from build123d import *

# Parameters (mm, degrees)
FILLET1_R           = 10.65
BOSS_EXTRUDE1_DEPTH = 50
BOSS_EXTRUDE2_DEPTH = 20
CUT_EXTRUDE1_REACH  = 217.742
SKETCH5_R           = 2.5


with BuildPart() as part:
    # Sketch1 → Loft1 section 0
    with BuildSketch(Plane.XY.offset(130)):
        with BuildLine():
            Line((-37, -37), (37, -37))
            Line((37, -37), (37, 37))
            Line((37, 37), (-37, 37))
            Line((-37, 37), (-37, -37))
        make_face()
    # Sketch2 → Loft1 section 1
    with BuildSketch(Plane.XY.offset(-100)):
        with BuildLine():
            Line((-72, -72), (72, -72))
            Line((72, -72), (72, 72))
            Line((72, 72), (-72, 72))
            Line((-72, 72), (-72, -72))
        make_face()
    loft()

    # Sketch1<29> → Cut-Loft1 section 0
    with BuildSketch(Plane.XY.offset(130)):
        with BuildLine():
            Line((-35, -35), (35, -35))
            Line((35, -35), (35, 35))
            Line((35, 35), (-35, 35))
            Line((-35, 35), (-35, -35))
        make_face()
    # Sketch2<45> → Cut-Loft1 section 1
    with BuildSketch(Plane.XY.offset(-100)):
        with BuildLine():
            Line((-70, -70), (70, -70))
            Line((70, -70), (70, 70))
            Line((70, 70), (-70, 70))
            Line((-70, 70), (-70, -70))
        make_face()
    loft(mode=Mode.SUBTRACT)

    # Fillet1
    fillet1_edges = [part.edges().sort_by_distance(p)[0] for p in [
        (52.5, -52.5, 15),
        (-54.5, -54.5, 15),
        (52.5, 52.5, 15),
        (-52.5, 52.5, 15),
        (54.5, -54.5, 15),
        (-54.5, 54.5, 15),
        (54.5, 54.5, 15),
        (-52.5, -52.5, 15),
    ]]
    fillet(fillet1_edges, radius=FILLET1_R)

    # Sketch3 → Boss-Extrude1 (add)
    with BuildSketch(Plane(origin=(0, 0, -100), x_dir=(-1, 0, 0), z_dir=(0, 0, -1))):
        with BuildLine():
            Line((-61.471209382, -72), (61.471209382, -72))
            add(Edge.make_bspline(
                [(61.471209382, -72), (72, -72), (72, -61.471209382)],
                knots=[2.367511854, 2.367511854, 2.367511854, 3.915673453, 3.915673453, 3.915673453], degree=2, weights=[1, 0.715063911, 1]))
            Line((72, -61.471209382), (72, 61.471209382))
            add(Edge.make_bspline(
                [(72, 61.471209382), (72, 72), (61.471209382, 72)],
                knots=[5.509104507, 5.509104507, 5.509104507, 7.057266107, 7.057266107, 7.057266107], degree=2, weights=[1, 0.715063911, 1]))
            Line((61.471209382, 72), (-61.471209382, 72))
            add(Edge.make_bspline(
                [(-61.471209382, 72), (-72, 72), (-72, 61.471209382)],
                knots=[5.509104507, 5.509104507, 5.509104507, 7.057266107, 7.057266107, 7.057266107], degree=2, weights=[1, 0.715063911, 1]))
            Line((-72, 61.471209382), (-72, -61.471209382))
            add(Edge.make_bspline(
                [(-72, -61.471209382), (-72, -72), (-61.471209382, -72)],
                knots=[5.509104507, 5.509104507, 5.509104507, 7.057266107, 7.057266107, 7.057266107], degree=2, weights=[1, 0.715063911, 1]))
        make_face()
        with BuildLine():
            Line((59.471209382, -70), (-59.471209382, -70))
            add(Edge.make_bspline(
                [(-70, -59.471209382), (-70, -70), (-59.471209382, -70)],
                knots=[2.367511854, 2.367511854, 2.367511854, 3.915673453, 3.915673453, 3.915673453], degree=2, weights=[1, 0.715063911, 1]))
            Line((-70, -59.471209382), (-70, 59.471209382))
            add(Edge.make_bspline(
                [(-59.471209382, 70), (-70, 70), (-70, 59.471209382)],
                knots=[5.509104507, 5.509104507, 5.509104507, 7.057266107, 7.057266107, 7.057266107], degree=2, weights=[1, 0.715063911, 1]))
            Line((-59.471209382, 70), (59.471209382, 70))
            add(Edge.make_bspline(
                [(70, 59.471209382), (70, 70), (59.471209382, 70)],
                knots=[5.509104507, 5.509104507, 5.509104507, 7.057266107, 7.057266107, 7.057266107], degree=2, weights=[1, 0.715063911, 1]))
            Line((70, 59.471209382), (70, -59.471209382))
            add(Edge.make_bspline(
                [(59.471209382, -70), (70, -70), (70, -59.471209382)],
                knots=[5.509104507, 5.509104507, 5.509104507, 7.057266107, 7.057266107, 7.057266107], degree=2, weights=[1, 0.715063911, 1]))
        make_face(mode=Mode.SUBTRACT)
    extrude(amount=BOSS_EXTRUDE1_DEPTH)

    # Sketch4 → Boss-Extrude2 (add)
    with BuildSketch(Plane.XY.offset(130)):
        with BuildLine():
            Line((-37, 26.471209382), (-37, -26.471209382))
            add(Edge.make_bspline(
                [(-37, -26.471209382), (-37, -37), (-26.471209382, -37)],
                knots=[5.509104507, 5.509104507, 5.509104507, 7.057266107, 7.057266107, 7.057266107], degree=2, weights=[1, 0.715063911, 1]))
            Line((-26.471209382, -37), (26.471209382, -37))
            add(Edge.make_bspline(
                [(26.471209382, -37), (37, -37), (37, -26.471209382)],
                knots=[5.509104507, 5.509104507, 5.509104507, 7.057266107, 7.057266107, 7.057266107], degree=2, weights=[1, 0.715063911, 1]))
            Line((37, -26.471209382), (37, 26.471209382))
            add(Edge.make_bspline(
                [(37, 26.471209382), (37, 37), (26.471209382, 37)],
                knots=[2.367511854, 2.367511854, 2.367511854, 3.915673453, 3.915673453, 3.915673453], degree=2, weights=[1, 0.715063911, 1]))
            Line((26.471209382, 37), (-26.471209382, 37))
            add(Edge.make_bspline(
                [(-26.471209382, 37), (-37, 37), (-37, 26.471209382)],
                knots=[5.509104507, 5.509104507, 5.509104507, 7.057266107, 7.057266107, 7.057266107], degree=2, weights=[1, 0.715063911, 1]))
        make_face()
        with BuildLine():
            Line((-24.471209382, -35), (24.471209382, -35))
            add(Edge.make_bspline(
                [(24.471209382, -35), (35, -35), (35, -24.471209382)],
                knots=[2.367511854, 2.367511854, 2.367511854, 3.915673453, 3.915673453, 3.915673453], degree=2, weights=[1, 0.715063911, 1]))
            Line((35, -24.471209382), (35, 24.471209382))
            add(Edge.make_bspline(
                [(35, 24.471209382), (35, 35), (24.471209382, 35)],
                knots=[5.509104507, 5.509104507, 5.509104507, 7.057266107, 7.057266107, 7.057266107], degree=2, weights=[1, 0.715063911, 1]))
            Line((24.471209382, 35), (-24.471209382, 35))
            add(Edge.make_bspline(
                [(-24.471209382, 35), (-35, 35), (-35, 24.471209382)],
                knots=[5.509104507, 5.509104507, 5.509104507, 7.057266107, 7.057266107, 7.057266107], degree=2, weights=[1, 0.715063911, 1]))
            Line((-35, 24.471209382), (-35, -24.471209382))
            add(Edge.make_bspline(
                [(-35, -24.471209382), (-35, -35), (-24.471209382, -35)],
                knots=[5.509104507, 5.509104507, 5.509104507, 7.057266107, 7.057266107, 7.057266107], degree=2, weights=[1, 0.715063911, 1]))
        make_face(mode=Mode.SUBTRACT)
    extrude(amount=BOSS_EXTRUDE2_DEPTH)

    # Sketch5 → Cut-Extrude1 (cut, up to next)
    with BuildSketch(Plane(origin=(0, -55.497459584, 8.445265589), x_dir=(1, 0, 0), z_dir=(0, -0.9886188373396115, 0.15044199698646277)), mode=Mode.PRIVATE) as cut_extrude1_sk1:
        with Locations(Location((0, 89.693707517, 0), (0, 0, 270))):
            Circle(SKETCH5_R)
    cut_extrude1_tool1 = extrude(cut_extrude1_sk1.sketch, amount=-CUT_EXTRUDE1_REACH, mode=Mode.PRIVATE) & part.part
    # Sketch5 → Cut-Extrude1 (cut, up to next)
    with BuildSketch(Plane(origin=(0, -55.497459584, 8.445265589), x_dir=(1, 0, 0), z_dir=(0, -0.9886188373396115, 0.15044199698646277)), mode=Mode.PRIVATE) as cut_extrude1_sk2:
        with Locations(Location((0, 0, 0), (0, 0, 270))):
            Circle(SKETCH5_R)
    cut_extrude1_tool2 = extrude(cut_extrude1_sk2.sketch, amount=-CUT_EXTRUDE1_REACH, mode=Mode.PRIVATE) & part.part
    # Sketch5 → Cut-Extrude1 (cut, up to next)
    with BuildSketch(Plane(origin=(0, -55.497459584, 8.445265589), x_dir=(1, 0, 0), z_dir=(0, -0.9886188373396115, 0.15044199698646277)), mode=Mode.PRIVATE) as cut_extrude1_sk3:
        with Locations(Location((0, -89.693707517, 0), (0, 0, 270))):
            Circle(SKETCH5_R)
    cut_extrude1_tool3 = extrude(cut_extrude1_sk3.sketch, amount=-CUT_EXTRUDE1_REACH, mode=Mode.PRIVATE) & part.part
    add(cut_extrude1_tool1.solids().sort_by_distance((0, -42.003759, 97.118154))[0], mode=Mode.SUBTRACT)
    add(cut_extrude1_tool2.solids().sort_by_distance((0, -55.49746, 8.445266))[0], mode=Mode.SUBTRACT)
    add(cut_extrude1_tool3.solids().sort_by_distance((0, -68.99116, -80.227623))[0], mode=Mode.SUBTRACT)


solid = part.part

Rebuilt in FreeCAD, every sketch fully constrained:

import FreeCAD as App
import Part
import Sketcher
from FreeCAD import Vector
Q = App.Units.Quantity


def edges_at(feature, points):
    """Names of the edges that pass closest to the given points."""
    edges = feature.Shape.Edges
    near = lambda p: min(range(len(edges)), key=lambda i: edges[i].distToShape(Part.Vertex(*p))[0])
    return sorted({f"Edge{near(p) + 1}" for p in points})

doc = App.newDocument("Part")
params = doc.addObject("Spreadsheet::Sheet", "Params")
for row, (alias, value) in enumerate([
    ("sketch1_width", "74 mm"),
    ("sketch2_width", "144 mm"),
    ("sketch3_width", "70 mm"),
    ("sketch4_width", "140 mm"),
    ("fillet_radius", "10.65 mm"),
    ("pad1_length", "50 mm"),
    ("pad2_length", "20 mm"),
    ("sketch7_diameter", "5 mm"),
    ("sketch8_diameter", "5 mm"),
    ("sketch9_diameter", "5 mm"),
], start=1):
    params.set(f"A{row}", alias)
    params.set(f"B{row}", "=" + value)
    params.setAlias(f"B{row}", alias)

body = doc.addObject("PartDesign::Body", "Body")

sketch1 = body.newObject("Sketcher::SketchObject", "Sketch")
sketch1.AttachmentSupport = (doc.getObject("XY_Plane"), [""])
sketch1.MapMode = "FlatFace"
sketch1.AttachmentOffset = App.Placement(Vector(0, 0, 130), App.Rotation())
sketch1.addGeometry([
    Part.LineSegment(Vector(-37, -37, 0), Vector(37, -37, 0)),
    Part.LineSegment(Vector(37, -37, 0), Vector(37, 37, 0)),
    Part.LineSegment(Vector(37, 37, 0), Vector(-37, 37, 0)),
    Part.LineSegment(Vector(-37, 37, 0), Vector(-37, -37, 0)),
], False)
sketch1.addConstraint([
    Sketcher.Constraint("Coincident", 0, 2, 1, 1),
    Sketcher.Constraint("Coincident", 1, 2, 2, 1),
    Sketcher.Constraint("Coincident", 2, 2, 3, 1),
    Sketcher.Constraint("Coincident", 3, 2, 0, 1),
    Sketcher.Constraint("Horizontal", 0),
    Sketcher.Constraint("Vertical", 1),
    Sketcher.Constraint("Horizontal", 2),
    Sketcher.Constraint("Vertical", 3),
    Sketcher.Constraint("Symmetric", 0, 2, 2, 2, -1, 1),
    Sketcher.Constraint("Equal", 2, 1),
    Sketcher.Constraint("DistanceX", 0, 1, 0, 2, Q("74 mm")),
])
sketch1.setExpression("Constraints[10]", "Params.sketch1_width")

sketch2 = body.newObject("Sketcher::SketchObject", "Sketch001")
sketch2.AttachmentSupport = (doc.getObject("XY_Plane"), [""])
sketch2.MapMode = "FlatFace"
sketch2.AttachmentOffset = App.Placement(Vector(0, 0, -100), App.Rotation())
sketch2.addGeometry([
    Part.LineSegment(Vector(-72, -72, 0), Vector(72, -72, 0)),
    Part.LineSegment(Vector(72, -72, 0), Vector(72, 72, 0)),
    Part.LineSegment(Vector(72, 72, 0), Vector(-72, 72, 0)),
    Part.LineSegment(Vector(-72, 72, 0), Vector(-72, -72, 0)),
], False)
sketch2.addConstraint([
    Sketcher.Constraint("Coincident", 0, 2, 1, 1),
    Sketcher.Constraint("Coincident", 1, 2, 2, 1),
    Sketcher.Constraint("Coincident", 2, 2, 3, 1),
    Sketcher.Constraint("Coincident", 3, 2, 0, 1),
    Sketcher.Constraint("Horizontal", 0),
    Sketcher.Constraint("Vertical", 1),
    Sketcher.Constraint("Horizontal", 2),
    Sketcher.Constraint("Vertical", 3),
    Sketcher.Constraint("Symmetric", 0, 2, 2, 2, -1, 1),
    Sketcher.Constraint("Equal", 2, 1),
    Sketcher.Constraint("DistanceX", 0, 1, 0, 2, Q("144 mm")),
])
sketch2.setExpression("Constraints[10]", "Params.sketch2_width")

additiveloft = body.newObject("PartDesign::AdditiveLoft", "AdditiveLoft")
additiveloft.Profile = sketch1
additiveloft.Sections = [sketch2]

sketch3 = body.newObject("Sketcher::SketchObject", "Sketch002")
sketch3.AttachmentSupport = (doc.getObject("XY_Plane"), [""])
sketch3.MapMode = "FlatFace"
sketch3.AttachmentOffset = App.Placement(Vector(0, 0, 130), App.Rotation())
sketch3.addGeometry([
    Part.LineSegment(Vector(-35, -35, 0), Vector(35, -35, 0)),
    Part.LineSegment(Vector(35, -35, 0), Vector(35, 35, 0)),
    Part.LineSegment(Vector(35, 35, 0), Vector(-35, 35, 0)),
    Part.LineSegment(Vector(-35, 35, 0), Vector(-35, -35, 0)),
], False)
sketch3.addConstraint([
    Sketcher.Constraint("Coincident", 0, 2, 1, 1),
    Sketcher.Constraint("Coincident", 1, 2, 2, 1),
    Sketcher.Constraint("Coincident", 2, 2, 3, 1),
    Sketcher.Constraint("Coincident", 3, 2, 0, 1),
    Sketcher.Constraint("Horizontal", 0),
    Sketcher.Constraint("Vertical", 1),
    Sketcher.Constraint("Horizontal", 2),
    Sketcher.Constraint("Vertical", 3),
    Sketcher.Constraint("Symmetric", 0, 2, 2, 2, -1, 1),
    Sketcher.Constraint("Equal", 2, 1),
    Sketcher.Constraint("DistanceX", 0, 1, 0, 2, Q("70 mm")),
])
sketch3.setExpression("Constraints[10]", "Params.sketch3_width")

sketch4 = body.newObject("Sketcher::SketchObject", "Sketch003")
sketch4.AttachmentSupport = (doc.getObject("XY_Plane"), [""])
sketch4.MapMode = "FlatFace"
sketch4.AttachmentOffset = App.Placement(Vector(0, 0, -100), App.Rotation())
sketch4.addGeometry([
    Part.LineSegment(Vector(-70, -70, 0), Vector(70, -70, 0)),
    Part.LineSegment(Vector(70, -70, 0), Vector(70, 70, 0)),
    Part.LineSegment(Vector(70, 70, 0), Vector(-70, 70, 0)),
    Part.LineSegment(Vector(-70, 70, 0), Vector(-70, -70, 0)),
], False)
sketch4.addConstraint([
    Sketcher.Constraint("Coincident", 0, 2, 1, 1),
    Sketcher.Constraint("Coincident", 1, 2, 2, 1),
    Sketcher.Constraint("Coincident", 2, 2, 3, 1),
    Sketcher.Constraint("Coincident", 3, 2, 0, 1),
    Sketcher.Constraint("Horizontal", 0),
    Sketcher.Constraint("Vertical", 1),
    Sketcher.Constraint("Horizontal", 2),
    Sketcher.Constraint("Vertical", 3),
    Sketcher.Constraint("Symmetric", 0, 2, 2, 2, -1, 1),
    Sketcher.Constraint("Equal", 2, 1),
    Sketcher.Constraint("DistanceX", 0, 1, 0, 2, Q("140 mm")),
])
sketch4.setExpression("Constraints[10]", "Params.sketch4_width")

subtractiveloft = body.newObject("PartDesign::SubtractiveLoft", "SubtractiveLoft")
subtractiveloft.Profile = sketch3
subtractiveloft.Sections = [sketch4]
doc.recompute()

fillet = body.newObject("PartDesign::Fillet", "Fillet")
fillet.Base = (subtractiveloft, edges_at(subtractiveloft, [
    (52.5, -52.5, 15),
    (-54.5, -54.5, 15),
    (52.5, 52.5, 15),
    (-52.5, 52.5, 15),
    (54.5, -54.5, 15),
    (-54.5, 54.5, 15),
    (54.5, 54.5, 15),
    (-52.5, -52.5, 15),
]))
fillet.setExpression("Radius", "Params.fillet_radius")

sketch5 = body.newObject("Sketcher::SketchObject", "Sketch004")
sketch5.AttachmentSupport = (doc.getObject("XY_Plane"), [""])
sketch5.MapMode = "FlatFace"
sketch5.AttachmentOffset = App.Placement(Vector(0, 0, -100), App.Rotation())
sketch5.addGeometry([
    Part.LineSegment(Vector(61.471209, -72, 0), Vector(-61.471209, -72, 0)),
    Part.BSplineCurve([Vector(-61.471209, -72, 0), Vector(-72, -72, 0), Vector(-72, -61.471209, 0)], [3, 3], [2.367511854, 3.915673453], False, 2, [1, 0.715063911, 1], False),
    Part.LineSegment(Vector(-72, -61.471209, 0), Vector(-72, 61.471209, 0)),
    Part.BSplineCurve([Vector(-72, 61.471209, 0), Vector(-72, 72, 0), Vector(-61.471209, 72, 0)], [3, 3], [5.509104507, 7.057266107], False, 2, [1, 0.715063911, 1], False),
    Part.LineSegment(Vector(-61.471209, 72, 0), Vector(61.471209, 72, 0)),
    Part.BSplineCurve([Vector(61.471209, 72, 0), Vector(72, 72, 0), Vector(72, 61.471209, 0)], [3, 3], [5.509104507, 7.057266107], False, 2, [1, 0.715063911, 1], False),
    Part.LineSegment(Vector(72, 61.471209, 0), Vector(72, -61.471209, 0)),
    Part.BSplineCurve([Vector(72, -61.471209, 0), Vector(72, -72, 0), Vector(61.471209, -72, 0)], [3, 3], [5.509104507, 7.057266107], False, 2, [1, 0.715063911, 1], False),
    Part.BSplineCurve([Vector(-59.471209, -70, 0), Vector(-70, -70, 0), Vector(-70, -59.471209, 0)], [3, 3], [5.509104507, 7.057266107], False, 2, [1, 0.715063911, 1], False),
    Part.LineSegment(Vector(-59.471209, -70, 0), Vector(59.471209, -70, 0)),
    Part.BSplineCurve([Vector(70, -59.471209, 0), Vector(70, -70, 0), Vector(59.471209, -70, 0)], [3, 3], [2.367511854, 3.915673453], False, 2, [1, 0.715063911, 1], False),
    Part.LineSegment(Vector(70, -59.471209, 0), Vector(70, 59.471209, 0)),
    Part.BSplineCurve([Vector(59.471209, 70, 0), Vector(70, 70, 0), Vector(70, 59.471209, 0)], [3, 3], [5.509104507, 7.057266107], False, 2, [1, 0.715063911, 1], False),
    Part.LineSegment(Vector(59.471209, 70, 0), Vector(-59.471209, 70, 0)),
    Part.BSplineCurve([Vector(-70, 59.471209, 0), Vector(-70, 70, 0), Vector(-59.471209, 70, 0)], [3, 3], [5.509104507, 7.057266107], False, 2, [1, 0.715063911, 1], False),
    Part.LineSegment(Vector(-70, 59.471209, 0), Vector(-70, -59.471209, 0)),
], False)
sketch5.addConstraint([
    Sketcher.Constraint("Block", 1),
    Sketcher.Constraint("Block", 3),
    Sketcher.Constraint("Block", 5),
    Sketcher.Constraint("Block", 7),
    Sketcher.Constraint("Block", 8),
    Sketcher.Constraint("Block", 10),
    Sketcher.Constraint("Block", 12),
    Sketcher.Constraint("Block", 14),
    Sketcher.Constraint("Coincident", 0, 2, 1, 1),
    Sketcher.Constraint("Coincident", 1, 2, 2, 1),
    Sketcher.Constraint("Coincident", 2, 2, 3, 1),
    Sketcher.Constraint("Coincident", 3, 2, 4, 1),
    Sketcher.Constraint("Coincident", 4, 2, 5, 1),
    Sketcher.Constraint("Coincident", 5, 2, 6, 1),
    Sketcher.Constraint("Coincident", 6, 2, 7, 1),
    Sketcher.Constraint("Coincident", 7, 2, 0, 1),
    Sketcher.Constraint("Coincident", 8, 1, 9, 1),
    Sketcher.Constraint("Coincident", 9, 2, 10, 2),
    Sketcher.Constraint("Coincident", 10, 1, 11, 1),
    Sketcher.Constraint("Coincident", 11, 2, 12, 2),
    Sketcher.Constraint("Coincident", 12, 1, 13, 1),
    Sketcher.Constraint("Coincident", 13, 2, 14, 2),
    Sketcher.Constraint("Coincident", 14, 1, 15, 1),
    Sketcher.Constraint("Coincident", 15, 2, 8, 2),
])
pad1 = body.newObject("PartDesign::Pad", "Pad")
pad1.Profile = sketch5
pad1.setExpression("Length", "Params.pad1_length")
pad1.Reversed = True

sketch6 = body.newObject("Sketcher::SketchObject", "Sketch005")
sketch6.AttachmentSupport = (doc.getObject("XY_Plane"), [""])
sketch6.MapMode = "FlatFace"
sketch6.AttachmentOffset = App.Placement(Vector(0, 0, 130), App.Rotation())
sketch6.addGeometry([
    Part.LineSegment(Vector(-37, 26.471209, 0), Vector(-37, -26.471209, 0)),
    Part.BSplineCurve([Vector(-37, -26.471209, 0), Vector(-37, -37, 0), Vector(-26.471209, -37, 0)], [3, 3], [5.509104507, 7.057266107], False, 2, [1, 0.715063911, 1], False),
    Part.LineSegment(Vector(-26.471209, -37, 0), Vector(26.471209, -37, 0)),
    Part.BSplineCurve([Vector(26.471209, -37, 0), Vector(37, -37, 0), Vector(37, -26.471209, 0)], [3, 3], [5.509104507, 7.057266107], False, 2, [1, 0.715063911, 1], False),
    Part.LineSegment(Vector(37, -26.471209, 0), Vector(37, 26.471209, 0)),
    Part.BSplineCurve([Vector(37, 26.471209, 0), Vector(37, 37, 0), Vector(26.471209, 37, 0)], [3, 3], [2.367511854, 3.915673453], False, 2, [1, 0.715063911, 1], False),
    Part.LineSegment(Vector(26.471209, 37, 0), Vector(-26.471209, 37, 0)),
    Part.BSplineCurve([Vector(-26.471209, 37, 0), Vector(-37, 37, 0), Vector(-37, 26.471209, 0)], [3, 3], [5.509104507, 7.057266107], False, 2, [1, 0.715063911, 1], False),
    Part.LineSegment(Vector(24.471209, -35, 0), Vector(-24.471209, -35, 0)),
    Part.BSplineCurve([Vector(-35, -24.471209, 0), Vector(-35, -35, 0), Vector(-24.471209, -35, 0)], [3, 3], [5.509104507, 7.057266107], False, 2, [1, 0.715063911, 1], False),
    Part.LineSegment(Vector(-35, -24.471209, 0), Vector(-35, 24.471209, 0)),
    Part.BSplineCurve([Vector(-24.471209, 35, 0), Vector(-35, 35, 0), Vector(-35, 24.471209, 0)], [3, 3], [5.509104507, 7.057266107], False, 2, [1, 0.715063911, 1], False),
    Part.LineSegment(Vector(-24.471209, 35, 0), Vector(24.471209, 35, 0)),
    Part.BSplineCurve([Vector(35, 24.471209, 0), Vector(35, 35, 0), Vector(24.471209, 35, 0)], [3, 3], [5.509104507, 7.057266107], False, 2, [1, 0.715063911, 1], False),
    Part.LineSegment(Vector(35, 24.471209, 0), Vector(35, -24.471209, 0)),
    Part.BSplineCurve([Vector(24.471209, -35, 0), Vector(35, -35, 0), Vector(35, -24.471209, 0)], [3, 3], [2.367511854, 3.915673453], False, 2, [1, 0.715063911, 1], False),
], False)
sketch6.addConstraint([
    Sketcher.Constraint("Block", 1),
    Sketcher.Constraint("Block", 3),
    Sketcher.Constraint("Block", 5),
    Sketcher.Constraint("Block", 7),
    Sketcher.Constraint("Block", 9),
    Sketcher.Constraint("Block", 11),
    Sketcher.Constraint("Block", 13),
    Sketcher.Constraint("Block", 15),
    Sketcher.Constraint("Coincident", 0, 2, 1, 1),
    Sketcher.Constraint("Coincident", 1, 2, 2, 1),
    Sketcher.Constraint("Coincident", 2, 2, 3, 1),
    Sketcher.Constraint("Coincident", 3, 2, 4, 1),
    Sketcher.Constraint("Coincident", 4, 2, 5, 1),
    Sketcher.Constraint("Coincident", 5, 2, 6, 1),
    Sketcher.Constraint("Coincident", 6, 2, 7, 1),
    Sketcher.Constraint("Coincident", 7, 2, 0, 1),
    Sketcher.Constraint("Coincident", 8, 2, 9, 2),
    Sketcher.Constraint("Coincident", 9, 1, 10, 1),
    Sketcher.Constraint("Coincident", 10, 2, 11, 2),
    Sketcher.Constraint("Coincident", 11, 1, 12, 1),
    Sketcher.Constraint("Coincident", 12, 2, 13, 2),
    Sketcher.Constraint("Coincident", 13, 1, 14, 1),
    Sketcher.Constraint("Coincident", 14, 2, 15, 2),
    Sketcher.Constraint("Coincident", 15, 1, 8, 1),
])
pad2 = body.newObject("PartDesign::Pad", "Pad001")
pad2.Profile = sketch6
pad2.setExpression("Length", "Params.pad2_length")

sketch7 = body.newObject("Sketcher::SketchObject", "Sketch006")
sketch7.Placement = App.Placement(Vector(0, -55.49746, 8.445266), App.Rotation(Vector(1, 0, 0), Vector(0, 0.150441997, 0.988618837), Vector(0, -0.988618837, 0.150441997), "ZXY"))
sketch7.addGeometry(Part.Circle(Vector(0, 89.693707, 0), Vector(0, 0, 1), 2.5), False)
sketch7.addConstraint([
    Sketcher.Constraint("PointOnObject", 0, 3, -2),
    Sketcher.Constraint("Diameter", 0, Q("5 mm")),
    Sketcher.Constraint("DistanceY", -1, 1, 0, 3, Q("89.693707 mm")),
])
sketch7.setExpression("Constraints[1]", "Params.sketch7_diameter")
pocket1 = body.newObject("PartDesign::Pocket", "Pocket")
pocket1.Profile = sketch7
pocket1.Type = "UpToFirst"

sketch8 = body.newObject("Sketcher::SketchObject", "Sketch007")
sketch8.Placement = App.Placement(Vector(0, -55.49746, 8.445266), App.Rotation(Vector(1, 0, 0), Vector(0, 0.150441997, 0.988618837), Vector(0, -0.988618837, 0.150441997), "ZXY"))
sketch8.addGeometry(Part.Circle(Vector(0, 0, 0), Vector(0, 0, 1), 2.5), False)
sketch8.addConstraint([
    Sketcher.Constraint("Coincident", 0, 3, -1, 1),
    Sketcher.Constraint("Diameter", 0, Q("5 mm")),
])
sketch8.setExpression("Constraints[1]", "Params.sketch8_diameter")
pocket2 = body.newObject("PartDesign::Pocket", "Pocket001")
pocket2.Profile = sketch8
pocket2.Type = "UpToFirst"

sketch9 = body.newObject("Sketcher::SketchObject", "Sketch008")
sketch9.Placement = App.Placement(Vector(0, -55.49746, 8.445266), App.Rotation(Vector(1, 0, 0), Vector(0, 0.150441997, 0.988618837), Vector(0, -0.988618837, 0.150441997), "ZXY"))
sketch9.addGeometry(Part.Circle(Vector(0, -89.693707, 0), Vector(0, 0, 1), 2.5), False)
sketch9.addConstraint([
    Sketcher.Constraint("PointOnObject", 0, 3, -2),
    Sketcher.Constraint("Diameter", 0, Q("5 mm")),
    Sketcher.Constraint("DistanceY", 0, 3, -1, 1, Q("89.693707 mm")),
])
sketch9.setExpression("Constraints[1]", "Params.sketch9_diameter")
pocket3 = body.newObject("PartDesign::Pocket", "Pocket002")
pocket3.Profile = sketch9
pocket3.Type = "UpToFirst"

doc.recompute()
